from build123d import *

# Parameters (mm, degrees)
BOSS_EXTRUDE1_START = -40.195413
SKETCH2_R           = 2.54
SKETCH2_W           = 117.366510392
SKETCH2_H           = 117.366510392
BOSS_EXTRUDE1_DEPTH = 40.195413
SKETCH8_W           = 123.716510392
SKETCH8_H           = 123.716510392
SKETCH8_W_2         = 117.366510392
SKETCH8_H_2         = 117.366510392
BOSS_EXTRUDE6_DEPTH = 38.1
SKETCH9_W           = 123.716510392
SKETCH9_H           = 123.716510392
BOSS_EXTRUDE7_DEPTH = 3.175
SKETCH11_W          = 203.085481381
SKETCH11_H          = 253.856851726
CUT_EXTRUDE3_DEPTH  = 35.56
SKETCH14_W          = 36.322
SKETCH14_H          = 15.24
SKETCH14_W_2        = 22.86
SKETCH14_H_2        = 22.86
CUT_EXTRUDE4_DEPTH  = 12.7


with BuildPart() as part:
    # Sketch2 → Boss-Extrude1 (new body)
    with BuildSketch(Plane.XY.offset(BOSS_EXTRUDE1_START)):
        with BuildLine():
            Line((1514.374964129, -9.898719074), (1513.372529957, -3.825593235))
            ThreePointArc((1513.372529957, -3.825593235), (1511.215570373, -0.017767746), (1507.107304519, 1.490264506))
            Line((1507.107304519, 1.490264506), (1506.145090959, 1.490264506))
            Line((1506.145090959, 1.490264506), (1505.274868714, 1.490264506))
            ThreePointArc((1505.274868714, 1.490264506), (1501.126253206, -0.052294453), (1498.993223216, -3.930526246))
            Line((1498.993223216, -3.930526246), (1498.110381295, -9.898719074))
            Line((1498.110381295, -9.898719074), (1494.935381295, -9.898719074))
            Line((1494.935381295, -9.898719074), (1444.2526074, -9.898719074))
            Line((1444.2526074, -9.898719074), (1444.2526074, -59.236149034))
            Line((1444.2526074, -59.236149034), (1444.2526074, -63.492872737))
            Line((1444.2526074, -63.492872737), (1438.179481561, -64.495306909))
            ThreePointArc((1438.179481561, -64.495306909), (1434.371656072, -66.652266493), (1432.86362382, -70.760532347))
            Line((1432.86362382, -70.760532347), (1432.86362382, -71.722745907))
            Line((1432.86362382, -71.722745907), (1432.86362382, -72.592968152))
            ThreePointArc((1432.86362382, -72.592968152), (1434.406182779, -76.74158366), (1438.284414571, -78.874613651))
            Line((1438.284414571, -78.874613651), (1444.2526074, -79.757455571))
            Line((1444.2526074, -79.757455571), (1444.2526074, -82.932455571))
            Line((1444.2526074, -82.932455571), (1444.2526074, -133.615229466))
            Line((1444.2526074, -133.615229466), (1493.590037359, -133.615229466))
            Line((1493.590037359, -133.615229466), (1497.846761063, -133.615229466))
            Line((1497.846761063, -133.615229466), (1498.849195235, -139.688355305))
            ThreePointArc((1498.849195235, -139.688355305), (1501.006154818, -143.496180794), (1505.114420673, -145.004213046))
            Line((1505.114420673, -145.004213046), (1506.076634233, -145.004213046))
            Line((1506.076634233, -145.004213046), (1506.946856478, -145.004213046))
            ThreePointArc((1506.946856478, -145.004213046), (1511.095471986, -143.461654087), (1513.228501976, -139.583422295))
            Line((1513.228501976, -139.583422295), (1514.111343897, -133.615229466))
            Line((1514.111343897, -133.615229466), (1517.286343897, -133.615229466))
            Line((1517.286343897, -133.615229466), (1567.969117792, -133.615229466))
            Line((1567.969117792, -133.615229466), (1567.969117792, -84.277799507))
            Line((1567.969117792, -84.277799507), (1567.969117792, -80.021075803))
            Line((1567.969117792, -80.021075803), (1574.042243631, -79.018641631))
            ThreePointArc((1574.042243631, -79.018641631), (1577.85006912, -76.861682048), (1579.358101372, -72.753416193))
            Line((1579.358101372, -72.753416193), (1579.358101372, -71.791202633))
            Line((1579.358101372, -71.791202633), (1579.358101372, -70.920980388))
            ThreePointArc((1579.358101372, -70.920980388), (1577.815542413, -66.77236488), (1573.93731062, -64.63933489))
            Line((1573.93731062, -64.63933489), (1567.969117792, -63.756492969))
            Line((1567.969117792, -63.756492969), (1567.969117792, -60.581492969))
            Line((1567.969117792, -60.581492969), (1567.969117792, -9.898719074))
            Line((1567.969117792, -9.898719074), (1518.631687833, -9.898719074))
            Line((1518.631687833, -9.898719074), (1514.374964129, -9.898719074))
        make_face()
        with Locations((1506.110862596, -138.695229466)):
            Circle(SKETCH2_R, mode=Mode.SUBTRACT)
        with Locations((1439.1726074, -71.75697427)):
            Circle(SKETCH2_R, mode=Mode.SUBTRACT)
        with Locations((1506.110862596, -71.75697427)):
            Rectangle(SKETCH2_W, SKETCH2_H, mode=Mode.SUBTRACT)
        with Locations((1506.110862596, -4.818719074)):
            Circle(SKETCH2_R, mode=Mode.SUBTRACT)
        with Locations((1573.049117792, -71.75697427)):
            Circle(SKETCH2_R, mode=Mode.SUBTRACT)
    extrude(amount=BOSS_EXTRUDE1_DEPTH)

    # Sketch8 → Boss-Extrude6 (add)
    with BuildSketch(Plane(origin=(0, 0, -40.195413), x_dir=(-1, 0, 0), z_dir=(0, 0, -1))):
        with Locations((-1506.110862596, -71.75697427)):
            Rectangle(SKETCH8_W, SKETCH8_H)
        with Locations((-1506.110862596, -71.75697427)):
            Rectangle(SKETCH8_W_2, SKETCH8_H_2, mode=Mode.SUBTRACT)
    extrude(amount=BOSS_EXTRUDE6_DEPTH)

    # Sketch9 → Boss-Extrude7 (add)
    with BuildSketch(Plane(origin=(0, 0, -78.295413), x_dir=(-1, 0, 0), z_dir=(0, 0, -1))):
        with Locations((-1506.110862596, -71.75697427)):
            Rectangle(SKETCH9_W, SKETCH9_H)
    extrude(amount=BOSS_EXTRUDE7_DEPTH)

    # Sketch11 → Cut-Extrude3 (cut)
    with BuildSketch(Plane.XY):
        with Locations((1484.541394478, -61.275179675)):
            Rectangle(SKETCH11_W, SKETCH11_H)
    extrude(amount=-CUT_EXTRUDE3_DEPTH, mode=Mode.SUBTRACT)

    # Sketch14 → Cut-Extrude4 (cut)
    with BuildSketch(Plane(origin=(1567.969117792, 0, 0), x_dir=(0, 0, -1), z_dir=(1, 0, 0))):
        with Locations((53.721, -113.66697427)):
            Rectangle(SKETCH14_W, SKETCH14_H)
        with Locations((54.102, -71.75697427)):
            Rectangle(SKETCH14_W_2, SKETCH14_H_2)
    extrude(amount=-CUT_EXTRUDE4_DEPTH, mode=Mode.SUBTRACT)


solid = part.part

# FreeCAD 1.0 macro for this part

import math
import FreeCAD as App
import Part
import Sketcher

V = App.Vector
Q = App.Units.Quantity


def add_polygon(sketch, points):
    """Adds a closed chain of lines whose ends are joined by coincident constraints."""
    first, n = sketch.GeometryCount, len(points)
    for a, b in zip(points, points[1:] + points[:1]):
        sketch.addGeometry(Part.LineSegment(App.Vector(*a, 0), App.Vector(*b, 0)), False)
    for i in range(n):
        sketch.addConstraint(Sketcher.Constraint("Coincident", first + i, 2, first + (i + 1) % n, 1))

doc = App.newDocument("Part")
body = doc.addObject("PartDesign::Body", "Body")

# Sketch on XY plane
sketch1 = body.newObject("Sketcher::SketchObject", "Sketch")
sketch1.AttachmentSupport = (doc.getObject("XY_Plane"), [""])
sketch1.MapMode = "FlatFace"
sketch1.AttachmentOffset = App.Placement(V(0, 0, -40.195413), App.Rotation())
sketch1.addGeometry(Part.LineSegment(V(1514.374964, -9.898719, 0), V(1513.37253, -3.825593, 0)), False)  # 0
sketch1.addGeometry(Part.ArcOfCircle(Part.Circle(V(1507.107305, -4.859735, 0), V(0, 0, 1), 6.35), math.radians(9.372769), math.radians(90)), False)  # 1
sketch1.addGeometry(Part.LineSegment(V(1507.107305, 1.490265, 0), V(1505.274869, 1.490265, 0)), False)  # 2
sketch1.addGeometry(Part.ArcOfCircle(Part.Circle(V(1505.274869, -4.859735, 0), V(0, 0, 1), 6.35), math.radians(90), math.radians(171.58557)), False)  # 3
sketch1.addGeometry(Part.LineSegment(V(1498.993223, -3.930526, 0), V(1498.110381, -9.898719, 0)), False)  # 4
sketch1.addGeometry(Part.LineSegment(V(1498.110381, -9.898719, 0), V(1444.252607, -9.898719, 0)), False)  # 5
sketch1.addGeometry(Part.LineSegment(V(1444.252607, -9.898719, 0), V(1444.252607, -63.492873, 0)), False)  # 6
sketch1.addGeometry(Part.LineSegment(V(1444.252607, -63.492873, 0), V(1438.179482, -64.495307, 0)), False)  # 7
sketch1.addGeometry(Part.ArcOfCircle(Part.Circle(V(1439.213624, -70.760532, 0), V(0, 0, 1), 6.35), math.radians(99.372769), math.radians(180)), False)  # 8
sketch1.addGeometry(Part.LineSegment(V(1432.863624, -70.760532, 0), V(1432.863624, -72.592968, 0)), False)  # 9
sketch1.addGeometry(Part.ArcOfCircle(Part.Circle(V(1439.213624, -72.592968, 0), V(0, 0, 1), 6.35), math.radians(-180), math.radians(-98.41443)), False)  # 10
sketch1.addGeometry(Part.LineSegment(V(1438.284415, -78.874614, 0), V(1444.252607, -79.757456, 0)), False)  # 11
sketch1.addGeometry(Part.LineSegment(V(1444.252607, -79.757456, 0), V(1444.252607, -133.615229, 0)), False)  # 12
sketch1.addGeometry(Part.LineSegment(V(1444.252607, -133.615229, 0), V(1497.846761, -133.615229, 0)), False)  # 13
sketch1.addGeometry(Part.LineSegment(V(1497.846761, -133.615229, 0), V(1498.849195, -139.688355, 0)), False)  # 14
sketch1.addGeometry(Part.ArcOfCircle(Part.Circle(V(1505.114421, -138.654213, 0), V(0, 0, 1), 6.35), math.radians(-170.627231), math.radians(-90)), False)  # 15
sketch1.addGeometry(Part.LineSegment(V(1505.114421, -145.004213, 0), V(1506.946856, -145.004213, 0)), False)  # 16
sketch1.addGeometry(Part.ArcOfCircle(Part.Circle(V(1506.946856, -138.654213, 0), V(0, 0, 1), 6.35), math.radians(-90), math.radians(-8.41443)), False)  # 17
sketch1.addGeometry(Part.LineSegment(V(1513.228502, -139.583422, 0), V(1514.111344, -133.615229, 0)), False)  # 18
sketch1.addGeometry(Part.LineSegment(V(1514.111344, -133.615229, 0), V(1567.969118, -133.615229, 0)), False)  # 19
sketch1.addGeometry(Part.LineSegment(V(1567.969118, -133.615229, 0), V(1567.969118, -80.021076, 0)), False)  # 20
sketch1.addGeometry(Part.LineSegment(V(1567.969118, -80.021076, 0), V(1574.042244, -79.018642, 0)), False)  # 21
sketch1.addGeometry(Part.ArcOfCircle(Part.Circle(V(1573.008101, -72.753416, 0), V(0, 0, 1), 6.35), math.radians(-80.627231), math.radians(0)), False)  # 22
sketch1.addGeometry(Part.LineSegment(V(1579.358101, -72.753416, 0), V(1579.358101, -70.92098, 0)), False)  # 23
sketch1.addGeometry(Part.ArcOfCircle(Part.Circle(V(1573.008101, -70.92098, 0), V(0, 0, 1), 6.35), math.radians(0), math.radians(81.58557)), False)  # 24
sketch1.addGeometry(Part.LineSegment(V(1573.937311, -64.639335, 0), V(1567.969118, -63.756493, 0)), False)  # 25
sketch1.addGeometry(Part.LineSegment(V(1567.969118, -63.756493, 0), V(1567.969118, -9.898719, 0)), False)  # 26
sketch1.addGeometry(Part.LineSegment(V(1567.969118, -9.898719, 0), V(1514.374964, -9.898719, 0)), False)  # 27
sketch1.addGeometry(Part.Circle(V(1506.110863, -138.695229, 0), V(0, 0, 1), 2.54), False)  # 28
sketch1.addGeometry(Part.Circle(V(1439.172607, -71.756974, 0), V(0, 0, 1), 2.54), False)  # 29
add_polygon(sketch1, [(1564.794118, -130.440229), (1447.427607, -130.440229), (1447.427607, -13.073719), (1564.794118, -13.073719)])  # lines 30-33
sketch1.addGeometry(Part.Circle(V(1573.049118, -71.756974, 0), V(0, 0, 1), 2.54), False)  # 34
sketch1.addGeometry(Part.Circle(V(1506.110863, -4.818719, 0), V(0, 0, 1), 2.54), False)  # 35
sketch1.addConstraint(Sketcher.Constraint("Tangent", 0, 2, 1, 1))
sketch1.addConstraint(Sketcher.Constraint("Tangent", 1, 2, 2, 1))
sketch1.addConstraint(Sketcher.Constraint("Tangent", 2, 2, 3, 1))
sketch1.addConstraint(Sketcher.Constraint("Tangent", 3, 2, 4, 1))
sketch1.addConstraint(Sketcher.Constraint("Coincident", 4, 2, 5, 1))
sketch1.addConstraint(Sketcher.Constraint("Coincident", 5, 2, 6, 1))
sketch1.addConstraint(Sketcher.Constraint("Coincident", 6, 2, 7, 1))
sketch1.addConstraint(Sketcher.Constraint("Tangent", 7, 2, 8, 1))
sketch1.addConstraint(Sketcher.Constraint("Tangent", 8, 2, 9, 1))
sketch1.addConstraint(Sketcher.Constraint("Tangent", 9, 2, 10, 1))
sketch1.addConstraint(Sketcher.Constraint("Tangent", 10, 2, 11, 1))
sketch1.addConstraint(Sketcher.Constraint("Coincident", 11, 2, 12, 1))
sketch1.addConstraint(Sketcher.Constraint("Coincident", 12, 2, 13, 1))
sketch1.addConstraint(Sketcher.Constraint("Coincident", 13, 2, 14, 1))
sketch1.addConstraint(Sketcher.Constraint("Tangent", 14, 2, 15, 1))
sketch1.addConstraint(Sketcher.Constraint("Tangent", 15, 2, 16, 1))
sketch1.addConstraint(Sketcher.Constraint("Tangent", 16, 2, 17, 1))
sketch1.addConstraint(Sketcher.Constraint("Tangent", 17, 2, 18, 1))
sketch1.addConstraint(Sketcher.Constraint("Coincident", 18, 2, 19, 1))
sketch1.addConstraint(Sketcher.Constraint("Coincident", 19, 2, 20, 1))
sketch1.addConstraint(Sketcher.Constraint("Coincident", 20, 2, 21, 1))
sketch1.addConstraint(Sketcher.Constraint("Tangent", 21, 2, 22, 1))
sketch1.addConstraint(Sketcher.Constraint("Tangent", 22, 2, 23, 1))
sketch1.addConstraint(Sketcher.Constraint("Tangent", 23, 2, 24, 1))
sketch1.addConstraint(Sketcher.Constraint("Tangent", 24, 2, 25, 1))
sketch1.addConstraint(Sketcher.Constraint("Coincident", 25, 2, 26, 1))
sketch1.addConstraint(Sketcher.Constraint("Coincident", 26, 2, 27, 1))
sketch1.addConstraint(Sketcher.Constraint("Coincident", 27, 2, 0, 1))
sketch1.addConstraint(Sketcher.Constraint("Horizontal", 2))
sketch1.addConstraint(Sketcher.Constraint("Horizontal", 5))
sketch1.addConstraint(Sketcher.Constraint("Vertical", 6))
sketch1.addConstraint(Sketcher.Constraint("Vertical", 9))
sketch1.addConstraint(Sketcher.Constraint("Vertical", 12))
sketch1.addConstraint(Sketcher.Constraint("Horizontal", 13))
sketch1.addConstraint(Sketcher.Constraint("Horizontal", 16))
sketch1.addConstraint(Sketcher.Constraint("Horizontal", 19))
sketch1.addConstraint(Sketcher.Constraint("Vertical", 20))
sketch1.addConstraint(Sketcher.Constraint("Vertical", 23))
sketch1.addConstraint(Sketcher.Constraint("Vertical", 26))
sketch1.addConstraint(Sketcher.Constraint("Horizontal", 27))
sketch1.addConstraint(Sketcher.Constraint("Horizontal", 30))
sketch1.addConstraint(Sketcher.Constraint("Vertical", 31))
sketch1.addConstraint(Sketcher.Constraint("Horizontal", 32))
sketch1.addConstraint(Sketcher.Constraint("Vertical", 33))
sketch1.addConstraint(Sketcher.Constraint("Equal", 1, 3))
sketch1.addConstraint(Sketcher.Constraint("Equal", 3, 8))
sketch1.addConstraint(Sketcher.Constraint("Equal", 8, 10))
sketch1.addConstraint(Sketcher.Constraint("Equal", 10, 15))
sketch1.addConstraint(Sketcher.Constraint("Equal", 15, 17))
sketch1.addConstraint(Sketcher.Constraint("Equal", 17, 22))
sketch1.addConstraint(Sketcher.Constraint("Equal", 22, 24))
sketch1.addConstraint(Sketcher.Constraint("Equal", 28, 29))
sketch1.addConstraint(Sketcher.Constraint("Equal", 29, 34))
sketch1.addConstraint(Sketcher.Constraint("Equal", 34, 35))
sketch1.addConstraint(Sketcher.Constraint("Perpendicular", 0, 7))
sketch1.addConstraint(Sketcher.Constraint("Perpendicular", 4, 11))
sketch1.addConstraint(Sketcher.Constraint("Perpendicular", 7, 14))
sketch1.addConstraint(Sketcher.Constraint("Perpendicular", 11, 18))
sketch1.addConstraint(Sketcher.Constraint("Perpendicular", 14, 21))
sketch1.addConstraint(Sketcher.Constraint("Perpendicular", 18, 25))
sketch1.addConstraint(Sketcher.Constraint("Horizontal", 29, 3, 34, 3))
sketch1.addConstraint(Sketcher.Constraint("Horizontal", 13, 2, 18, 2))
sketch1.addConstraint(Sketcher.Constraint("Horizontal", 5, 2, 26, 2))
sketch1.addConstraint(Sketcher.Constraint("Vertical", 28, 3, 35, 3))
sketch1.addConstraint(Sketcher.Constraint("Vertical", 6, 2, 11, 2))
sketch1.addConstraint(Sketcher.Constraint("Vertical", 20, 2, 25, 2))
sketch1.addConstraint(Sketcher.Constraint("Equal", 2, 16))
sketch1.addConstraint(Sketcher.Constraint("Equal", 5, 19))
sketch1.addConstraint(Sketcher.Constraint("Equal", 13, 27))
sketch1.addConstraint(Sketcher.Constraint("Equal", 27, 6))
sketch1.addConstraint(Sketcher.Constraint("Equal", 16, 9))
sketch1.addConstraint(Sketcher.Constraint("Equal", 19, 12))
sketch1.addConstraint(Sketcher.Constraint("Equal", 6, 20))
sketch1.addConstraint(Sketcher.Constraint("Equal", 9, 23))
sketch1.addConstraint(Sketcher.Constraint("Equal", 12, 26))
sketch1.addConstraint(Sketcher.Constraint("Equal", 32, 31))
sketch1.addConstraint(Sketcher.Constraint("Equal", 0, 7))
sketch1.addConstraint(Sketcher.Constraint("Diameter", 28, Q("0.2 in")))
sketch1.addConstraint(Sketcher.Constraint("Radius", 1, Q("0.25 in")))
sketch1.addConstraint(Sketcher.Constraint("DistanceY", 4, 2, 35, 3, Q("0.2 in")))
sketch1.addConstraint(Sketcher.Constraint("DistanceX", 29, 3, 5, 2, Q("0.2 in")))
sketch1.addConstraint(Sketcher.Constraint("DistanceY", 28, 3, 13, 2, Q("0.2 in")))
sketch1.addConstraint(Sketcher.Constraint("DistanceX", 20, 2, 34, 3, Q("0.2 in")))
sketch1.addConstraint(Sketcher.Constraint("DistanceX", 12, 2, 30, 2, Q("0.125 in")))
sketch1.addConstraint(Sketcher.Constraint("DistanceY", 12, 2, 30, 2, Q("0.125 in")))
sketch1.addConstraint(Sketcher.Constraint("DistanceY", 31, 2, 5, 2, Q("0.125 in")))
sketch1.addConstraint(Sketcher.Constraint("Distance", 0, 6.155301))
sketch1.addConstraint(Sketcher.Constraint("DistanceX", 30, 2, 30, 1, 117.36651))
sketch1.addConstraint(Sketcher.Constraint("DistanceX", -1, 1, 22, 3, 1573.008101))
sketch1.addConstraint(Sketcher.Constraint("DistanceX", -1, 1, 17, 2, 1513.228502))
sketch1.addConstraint(Sketcher.Constraint("DistanceY", 29, 3, 6, 2, 8.264102))
sketch1.addConstraint(Sketcher.Constraint("DistanceX", 13, 2, 28, 3, 8.264102))
sketch1.addConstraint(Sketcher.Constraint("DistanceY", 20, 2, 34, 3, 8.264102))
sketch1.addConstraint(Sketcher.Constraint("DistanceX", 2, 2, 2, 1, 1.832436))
sketch1.addConstraint(Sketcher.Constraint("DistanceX", 5, 2, 5, 1, 53.857774))
sketch1.addConstraint(Sketcher.Constraint("DistanceY", 10, 3, -1, 1, 72.592968))
pad1 = body.newObject("PartDesign::Pad", "Pad")
pad1.Profile = sketch1
pad1.Length = 40.195413

# Sketch on XY plane
sketch2 = body.newObject("Sketcher::SketchObject", "Sketch001")
sketch2.AttachmentSupport = (doc.getObject("XY_Plane"), [""])
sketch2.MapMode = "FlatFace"
sketch2.AttachmentOffset = App.Placement(V(0, 0, -40.195413), App.Rotation())
add_polygon(sketch2, [(1567.969118, -9.898719), (1567.969118, -133.615229), (1444.252607, -133.615229), (1444.252607, -9.898719)])  # lines 0-3
add_polygon(sketch2, [(1447.427607, -130.440229), (1564.794118, -130.440229), (1564.794118, -13.073719), (1447.427607, -13.073719)])  # lines 4-7
sketch2.addConstraint(Sketcher.Constraint("Vertical", 0))
sketch2.addConstraint(Sketcher.Constraint("Horizontal", 1))
sketch2.addConstraint(Sketcher.Constraint("Vertical", 2))
sketch2.addConstraint(Sketcher.Constraint("Horizontal", 3))
sketch2.addConstraint(Sketcher.Constraint("Horizontal", 4))
sketch2.addConstraint(Sketcher.Constraint("Vertical", 5))
sketch2.addConstraint(Sketcher.Constraint("Horizontal", 6))
sketch2.addConstraint(Sketcher.Constraint("Vertical", 7))
sketch2.addConstraint(Sketcher.Constraint("Equal", 3, 0))
sketch2.addConstraint(Sketcher.Constraint("Equal", 6, 5))
sketch2.addConstraint(Sketcher.Constraint("DistanceX", 4, 2, 0, 2, Q("0.125 in")))
sketch2.addConstraint(Sketcher.Constraint("DistanceY", 0, 2, 4, 2, Q("0.125 in")))
sketch2.addConstraint(Sketcher.Constraint("DistanceY", 5, 2, 3, 2, Q("0.125 in")))
sketch2.addConstraint(Sketcher.Constraint("DistanceX", 1, 2, 1, 1, 123.71651))
sketch2.addConstraint(Sketcher.Constraint("DistanceY", 0, 2, -1, 1, 133.615229))
sketch2.addConstraint(Sketcher.Constraint("DistanceX", -1, 1, 0, 2, 1567.969118))
pad2 = body.newObject("PartDesign::Pad", "Pad001")
pad2.Profile = sketch2
pad2.Length = Q("1.5 in")
pad2.Reversed = True

# Sketch on XY plane
sketch3 = body.newObject("Sketcher::SketchObject", "Sketch002")
sketch3.AttachmentSupport = (doc.getObject("XY_Plane"), [""])
sketch3.MapMode = "FlatFace"
sketch3.AttachmentOffset = App.Placement(V(0, 0, -78.295413), App.Rotation())
add_polygon(sketch3, [(1567.969118, -9.898719), (1567.969118, -133.615229), (1444.252607, -133.615229), (1444.252607, -9.898719)])  # lines 0-3
sketch3.addConstraint(Sketcher.Constraint("Vertical", 0))
sketch3.addConstraint(Sketcher.Constraint("Horizontal", 1))
sketch3.addConstraint(Sketcher.Constraint("Vertical", 2))
sketch3.addConstraint(Sketcher.Constraint("Horizontal", 3))
sketch3.addConstraint(Sketcher.Constraint("Equal", 3, 0))
sketch3.addConstraint(Sketcher.Constraint("DistanceX", 1, 2, 1, 1, 123.71651))
sketch3.addConstraint(Sketcher.Constraint("DistanceY", 0, 2, -1, 1, 133.615229))
sketch3.addConstraint(Sketcher.Constraint("DistanceX", -1, 1, 0, 2, 1567.969118))
pad3 = body.newObject("PartDesign::Pad", "Pad002")
pad3.Profile = sketch3
pad3.Length = Q("0.125 in")
pad3.Reversed = True

# Sketch on XY plane
sketch4 = body.newObject("Sketcher::SketchObject", "Sketch003")
sketch4.AttachmentSupport = (doc.getObject("XY_Plane"), [""])
sketch4.MapMode = "FlatFace"
add_polygon(sketch4, [(1382.998654, 65.653246), (1382.998654, -188.203606), (1586.084135, -188.203606), (1586.084135, 65.653246)])  # lines 0-3
sketch4.addConstraint(Sketcher.Constraint("Vertical", 0))
sketch4.addConstraint(Sketcher.Constraint("Horizontal", 1))
sketch4.addConstraint(Sketcher.Constraint("Vertical", 2))
sketch4.addConstraint(Sketcher.Constraint("Horizontal", 3))
sketch4.addConstraint(Sketcher.Constraint("DistanceX", 1, 1, 1, 2, 203.085481))
sketch4.addConstraint(Sketcher.Constraint("DistanceY", 0, 2, 0, 1, 253.856852))
sketch4.addConstraint(Sketcher.Constraint("DistanceX", -1, 1, 0, 2, 1382.998654))
sketch4.addConstraint(Sketcher.Constraint("DistanceY", 0, 2, -1, 1, 188.203606))
pocket1 = body.newObject("PartDesign::Pocket", "Pocket")
pocket1.Profile = sketch4
pocket1.Length = Q("1.4 in")

# Sketch on YZ plane
sketch5 = body.newObject("Sketcher::SketchObject", "Sketch004")
sketch5.AttachmentSupport = (doc.getObject("YZ_Plane"), [""])
sketch5.MapMode = "FlatFace"
sketch5.AttachmentOffset = App.Placement(V(0, 0, 1567.969118), App.Rotation())
add_polygon(sketch5, [(-106.046974, -35.56), (-121.286974, -35.56), (-121.286974, -71.882), (-106.046974, -71.882)])  # lines 0-3
add_polygon(sketch5, [(-60.326974, -42.672), (-83.186974, -42.672), (-83.186974, -65.532), (-60.326974, -65.532)])  # lines 4-7
sketch5.addConstraint(Sketcher.Constraint("Horizontal", 0))
sketch5.addConstraint(Sketcher.Constraint("Vertical", 1))
sketch5.addConstraint(Sketcher.Constraint("Horizontal", 2))
sketch5.addConstraint(Sketcher.Constraint("Vertical", 3))
sketch5.addConstraint(Sketcher.Constraint("Horizontal", 4))
sketch5.addConstraint(Sketcher.Constraint("Vertical", 5))
sketch5.addConstraint(Sketcher.Constraint("Horizontal", 6))
sketch5.addConstraint(Sketcher.Constraint("Vertical", 7))
sketch5.addConstraint(Sketcher.Constraint("Equal", 6, 5))
sketch5.addConstraint(Sketcher.Constraint("DistanceX", 0, 2, 0, 1, Q("0.6 in")))
sketch5.addConstraint(Sketcher.Constraint("DistanceX", 4, 2, 4, 1, Q("0.9 in")))
sketch5.addConstraint(Sketcher.Constraint("DistanceY", 1, 2, 1, 1, Q("1.43 in")))
sketch5.addConstraint(Sketcher.Constraint("DistanceY", 0, 2, -1, 1, Q("1.4 in")))
sketch5.addConstraint(Sketcher.Constraint("DistanceX", 3, 2, 4, 2, Q("0.9 in")))
sketch5.addConstraint(Sketcher.Constraint("DistanceY", 4, 2, -1, 1, Q("1.68 in")))
sketch5.addConstraint(Sketcher.Constraint("DistanceX", 0, 2, -1, 1, 121.286974))
pocket2 = body.newObject("PartDesign::Pocket", "Pocket001")
pocket2.Profile = sketch5
pocket2.Length = Q("0.5 in")

doc.recompute()
